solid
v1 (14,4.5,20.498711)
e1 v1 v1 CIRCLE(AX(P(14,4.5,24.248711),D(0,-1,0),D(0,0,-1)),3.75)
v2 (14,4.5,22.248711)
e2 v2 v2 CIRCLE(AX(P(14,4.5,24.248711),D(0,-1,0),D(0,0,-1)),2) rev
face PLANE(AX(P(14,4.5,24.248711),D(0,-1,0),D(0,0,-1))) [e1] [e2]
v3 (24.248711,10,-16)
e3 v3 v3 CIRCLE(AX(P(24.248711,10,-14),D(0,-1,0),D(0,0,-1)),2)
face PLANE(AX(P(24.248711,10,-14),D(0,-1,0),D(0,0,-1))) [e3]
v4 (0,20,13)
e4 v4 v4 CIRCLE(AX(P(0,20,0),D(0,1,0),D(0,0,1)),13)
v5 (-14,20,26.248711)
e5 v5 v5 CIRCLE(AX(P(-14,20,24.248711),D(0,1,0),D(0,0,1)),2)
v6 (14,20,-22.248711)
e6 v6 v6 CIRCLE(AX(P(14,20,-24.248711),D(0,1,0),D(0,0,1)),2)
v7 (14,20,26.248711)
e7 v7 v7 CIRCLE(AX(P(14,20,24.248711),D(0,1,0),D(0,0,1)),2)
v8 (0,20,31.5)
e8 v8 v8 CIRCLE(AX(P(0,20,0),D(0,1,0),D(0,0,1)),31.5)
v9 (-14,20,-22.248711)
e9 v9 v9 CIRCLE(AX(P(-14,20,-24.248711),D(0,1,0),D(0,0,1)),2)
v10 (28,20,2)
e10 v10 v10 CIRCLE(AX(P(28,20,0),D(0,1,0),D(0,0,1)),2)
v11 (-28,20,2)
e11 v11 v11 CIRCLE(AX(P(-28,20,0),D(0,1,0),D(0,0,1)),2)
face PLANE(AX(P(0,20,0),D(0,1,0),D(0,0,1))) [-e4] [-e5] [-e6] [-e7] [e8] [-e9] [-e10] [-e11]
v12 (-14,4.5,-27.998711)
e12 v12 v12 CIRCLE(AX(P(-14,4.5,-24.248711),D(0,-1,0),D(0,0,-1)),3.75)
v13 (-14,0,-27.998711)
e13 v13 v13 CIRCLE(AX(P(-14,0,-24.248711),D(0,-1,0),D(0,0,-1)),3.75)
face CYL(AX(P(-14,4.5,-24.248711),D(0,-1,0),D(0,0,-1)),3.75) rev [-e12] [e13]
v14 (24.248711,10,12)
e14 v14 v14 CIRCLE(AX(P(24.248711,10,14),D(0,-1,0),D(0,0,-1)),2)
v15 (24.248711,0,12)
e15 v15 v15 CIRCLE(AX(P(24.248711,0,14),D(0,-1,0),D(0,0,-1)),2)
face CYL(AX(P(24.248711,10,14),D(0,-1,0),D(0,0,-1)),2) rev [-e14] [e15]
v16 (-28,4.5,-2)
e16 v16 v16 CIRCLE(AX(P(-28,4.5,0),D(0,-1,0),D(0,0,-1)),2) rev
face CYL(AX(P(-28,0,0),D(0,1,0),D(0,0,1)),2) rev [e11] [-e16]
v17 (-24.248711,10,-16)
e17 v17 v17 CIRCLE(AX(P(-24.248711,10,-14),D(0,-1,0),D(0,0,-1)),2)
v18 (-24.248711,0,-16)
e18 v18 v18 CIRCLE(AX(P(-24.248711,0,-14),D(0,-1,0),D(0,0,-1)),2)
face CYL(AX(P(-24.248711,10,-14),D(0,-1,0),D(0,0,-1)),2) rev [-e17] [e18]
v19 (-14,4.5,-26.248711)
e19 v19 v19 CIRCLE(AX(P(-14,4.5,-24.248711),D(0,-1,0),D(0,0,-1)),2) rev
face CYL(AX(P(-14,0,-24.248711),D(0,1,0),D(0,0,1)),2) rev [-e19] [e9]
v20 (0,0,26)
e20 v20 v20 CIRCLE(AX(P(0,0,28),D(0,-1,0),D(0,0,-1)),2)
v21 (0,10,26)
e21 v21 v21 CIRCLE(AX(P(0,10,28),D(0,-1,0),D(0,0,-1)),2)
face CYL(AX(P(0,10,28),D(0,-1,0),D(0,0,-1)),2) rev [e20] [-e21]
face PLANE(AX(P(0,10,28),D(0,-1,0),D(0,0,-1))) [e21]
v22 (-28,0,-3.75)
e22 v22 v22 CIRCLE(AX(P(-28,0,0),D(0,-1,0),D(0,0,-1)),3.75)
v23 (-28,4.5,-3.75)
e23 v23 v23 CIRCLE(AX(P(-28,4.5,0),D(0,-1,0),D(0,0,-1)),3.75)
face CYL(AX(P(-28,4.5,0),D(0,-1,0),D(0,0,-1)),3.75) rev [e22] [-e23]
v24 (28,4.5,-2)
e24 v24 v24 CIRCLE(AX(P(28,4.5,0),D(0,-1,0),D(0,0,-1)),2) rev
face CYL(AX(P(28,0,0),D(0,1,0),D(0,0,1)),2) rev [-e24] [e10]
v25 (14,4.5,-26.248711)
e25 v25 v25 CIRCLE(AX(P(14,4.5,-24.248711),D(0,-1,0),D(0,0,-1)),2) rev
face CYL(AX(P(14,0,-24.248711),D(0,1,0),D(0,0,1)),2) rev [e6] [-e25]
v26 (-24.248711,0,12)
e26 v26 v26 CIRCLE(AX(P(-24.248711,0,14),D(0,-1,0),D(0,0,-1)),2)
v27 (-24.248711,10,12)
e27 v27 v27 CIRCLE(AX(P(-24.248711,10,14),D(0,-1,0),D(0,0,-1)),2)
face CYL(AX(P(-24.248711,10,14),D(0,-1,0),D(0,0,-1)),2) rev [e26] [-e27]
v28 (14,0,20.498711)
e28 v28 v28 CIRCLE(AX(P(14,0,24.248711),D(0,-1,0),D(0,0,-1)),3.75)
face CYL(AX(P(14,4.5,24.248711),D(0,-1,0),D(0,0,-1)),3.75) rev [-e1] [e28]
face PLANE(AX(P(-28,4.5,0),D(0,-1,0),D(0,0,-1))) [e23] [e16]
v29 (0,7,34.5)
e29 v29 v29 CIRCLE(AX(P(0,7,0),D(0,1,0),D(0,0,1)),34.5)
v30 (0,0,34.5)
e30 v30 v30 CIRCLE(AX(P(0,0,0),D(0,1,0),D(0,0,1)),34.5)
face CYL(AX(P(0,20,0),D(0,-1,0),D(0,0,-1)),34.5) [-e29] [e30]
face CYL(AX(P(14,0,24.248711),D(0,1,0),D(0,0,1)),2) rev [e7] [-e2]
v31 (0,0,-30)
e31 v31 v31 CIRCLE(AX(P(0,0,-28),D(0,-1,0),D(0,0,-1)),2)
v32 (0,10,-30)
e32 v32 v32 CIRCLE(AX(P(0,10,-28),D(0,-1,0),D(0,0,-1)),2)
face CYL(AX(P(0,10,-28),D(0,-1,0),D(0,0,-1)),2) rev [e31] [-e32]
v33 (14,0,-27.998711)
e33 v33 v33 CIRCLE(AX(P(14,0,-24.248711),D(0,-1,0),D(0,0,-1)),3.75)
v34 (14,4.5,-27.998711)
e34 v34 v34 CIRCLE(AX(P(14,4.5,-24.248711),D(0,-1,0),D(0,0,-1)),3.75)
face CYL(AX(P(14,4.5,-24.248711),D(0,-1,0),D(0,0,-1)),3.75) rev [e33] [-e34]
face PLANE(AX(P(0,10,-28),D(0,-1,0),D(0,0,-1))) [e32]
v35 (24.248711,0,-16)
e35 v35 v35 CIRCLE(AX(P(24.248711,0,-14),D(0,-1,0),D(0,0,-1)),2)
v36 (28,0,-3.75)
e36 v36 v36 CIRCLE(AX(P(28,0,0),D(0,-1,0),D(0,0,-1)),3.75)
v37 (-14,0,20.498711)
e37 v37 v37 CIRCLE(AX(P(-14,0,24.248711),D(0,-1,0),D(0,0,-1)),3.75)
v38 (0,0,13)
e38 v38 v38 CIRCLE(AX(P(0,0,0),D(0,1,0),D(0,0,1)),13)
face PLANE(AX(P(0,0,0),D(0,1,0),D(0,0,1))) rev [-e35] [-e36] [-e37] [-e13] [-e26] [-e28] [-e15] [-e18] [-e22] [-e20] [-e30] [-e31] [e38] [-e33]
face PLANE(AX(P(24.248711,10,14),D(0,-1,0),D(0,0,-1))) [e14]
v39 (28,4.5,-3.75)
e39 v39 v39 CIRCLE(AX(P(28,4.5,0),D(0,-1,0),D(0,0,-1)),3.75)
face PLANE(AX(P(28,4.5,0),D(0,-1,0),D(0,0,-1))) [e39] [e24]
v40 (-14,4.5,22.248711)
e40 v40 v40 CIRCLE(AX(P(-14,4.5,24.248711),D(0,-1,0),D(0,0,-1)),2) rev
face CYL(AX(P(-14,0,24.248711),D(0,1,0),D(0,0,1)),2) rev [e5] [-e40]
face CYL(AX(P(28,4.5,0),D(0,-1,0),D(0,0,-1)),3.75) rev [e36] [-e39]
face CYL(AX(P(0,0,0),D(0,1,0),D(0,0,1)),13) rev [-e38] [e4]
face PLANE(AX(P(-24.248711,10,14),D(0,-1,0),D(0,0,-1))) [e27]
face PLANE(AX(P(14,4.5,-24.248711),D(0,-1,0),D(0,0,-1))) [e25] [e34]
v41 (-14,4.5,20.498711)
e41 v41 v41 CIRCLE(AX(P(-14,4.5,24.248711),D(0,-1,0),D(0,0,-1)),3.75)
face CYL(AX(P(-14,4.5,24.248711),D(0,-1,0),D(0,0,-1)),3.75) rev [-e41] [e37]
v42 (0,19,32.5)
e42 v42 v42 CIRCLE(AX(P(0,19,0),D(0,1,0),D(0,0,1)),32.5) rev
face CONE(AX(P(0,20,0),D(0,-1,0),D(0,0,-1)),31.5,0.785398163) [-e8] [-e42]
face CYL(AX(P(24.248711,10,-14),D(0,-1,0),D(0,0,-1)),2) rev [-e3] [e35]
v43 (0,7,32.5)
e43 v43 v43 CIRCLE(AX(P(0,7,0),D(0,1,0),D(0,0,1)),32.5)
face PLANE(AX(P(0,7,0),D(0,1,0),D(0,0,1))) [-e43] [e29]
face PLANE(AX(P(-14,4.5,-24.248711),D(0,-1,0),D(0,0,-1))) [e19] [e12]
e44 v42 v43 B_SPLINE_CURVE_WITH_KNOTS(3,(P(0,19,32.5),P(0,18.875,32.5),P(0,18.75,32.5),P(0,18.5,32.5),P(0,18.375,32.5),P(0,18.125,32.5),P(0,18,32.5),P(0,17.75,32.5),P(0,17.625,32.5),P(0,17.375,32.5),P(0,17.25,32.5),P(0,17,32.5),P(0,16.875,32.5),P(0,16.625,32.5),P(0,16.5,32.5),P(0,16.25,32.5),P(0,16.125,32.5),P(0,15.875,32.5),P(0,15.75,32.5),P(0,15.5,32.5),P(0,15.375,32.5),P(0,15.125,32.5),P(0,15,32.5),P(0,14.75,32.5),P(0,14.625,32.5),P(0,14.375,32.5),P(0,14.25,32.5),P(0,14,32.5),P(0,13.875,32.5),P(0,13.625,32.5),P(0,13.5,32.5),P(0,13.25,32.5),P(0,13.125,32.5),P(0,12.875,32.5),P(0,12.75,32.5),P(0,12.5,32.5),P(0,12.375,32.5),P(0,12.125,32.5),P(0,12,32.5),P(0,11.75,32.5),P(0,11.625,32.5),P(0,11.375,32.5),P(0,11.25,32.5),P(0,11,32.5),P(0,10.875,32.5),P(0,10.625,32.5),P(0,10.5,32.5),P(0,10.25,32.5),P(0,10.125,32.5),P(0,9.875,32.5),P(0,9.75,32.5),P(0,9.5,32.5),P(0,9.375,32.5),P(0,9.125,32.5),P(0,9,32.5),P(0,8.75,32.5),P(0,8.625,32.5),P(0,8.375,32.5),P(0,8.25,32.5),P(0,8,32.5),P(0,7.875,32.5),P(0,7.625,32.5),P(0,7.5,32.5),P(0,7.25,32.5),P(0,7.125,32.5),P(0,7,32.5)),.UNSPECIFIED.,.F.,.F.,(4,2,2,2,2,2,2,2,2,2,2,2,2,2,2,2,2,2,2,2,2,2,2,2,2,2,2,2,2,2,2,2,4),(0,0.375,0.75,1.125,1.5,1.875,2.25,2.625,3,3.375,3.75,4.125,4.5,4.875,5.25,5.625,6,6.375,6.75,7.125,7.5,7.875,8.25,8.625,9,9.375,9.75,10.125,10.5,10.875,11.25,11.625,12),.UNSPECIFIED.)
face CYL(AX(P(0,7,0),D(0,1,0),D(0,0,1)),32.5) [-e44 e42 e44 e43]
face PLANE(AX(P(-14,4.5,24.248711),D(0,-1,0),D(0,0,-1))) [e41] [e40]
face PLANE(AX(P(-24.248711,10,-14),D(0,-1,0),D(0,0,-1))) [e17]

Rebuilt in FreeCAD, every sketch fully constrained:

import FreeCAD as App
import Part
import Sketcher
from FreeCAD import Vector
Q = App.Units.Quantity


def edges_at(feature, points):
    """Names of the edges that pass closest to the given points."""
    edges = feature.Shape.Edges
    near = lambda p: min(range(len(edges)), key=lambda i: edges[i].distToShape(Part.Vertex(*p))[0])
    return sorted({f"Edge{near(p) + 1}" for p in points})

doc = App.newDocument("Part")
body = doc.addObject("PartDesign::Body", "Body")

# Sketch on XZ plane
sketch1 = body.newObject("Sketcher::SketchObject", "Sketch")
sketch1.AttachmentSupport = (doc.getObject("XZ_Plane"), [""])
sketch1.MapMode = "FlatFace"
sketch1.addGeometry(Part.Circle(Vector(0, 0, 0), Vector(0, 0, 1), 34), False)
sketch1.addConstraint([
    Sketcher.Constraint("Coincident", 0, 3, -1, 1),
    Sketcher.Constraint("Diameter", 0, Q("69 mm")),
])
pad1 = body.newObject("PartDesign::Pad", "Pad")
pad1.Profile = sketch1
pad1.Length = 20
pad1.Reversed = True

# Sketch on XZ plane
sketch2 = body.newObject("Sketcher::SketchObject", "Sketch001")
sketch2.AttachmentSupport = (doc.getObject("XZ_Plane"), [""])
sketch2.MapMode = "FlatFace"
sketch2.AttachmentOffset = App.Placement(Vector(0, 0, -7), App.Rotation())
sketch2.addGeometry([
    Part.Circle(Vector(0, 0, 0), Vector(0, 0, 1), 34),
    Part.Circle(Vector(0, 0, 0), Vector(0, 0, 1), 32),
], False)
sketch2.addConstraint([
    Sketcher.Constraint("Coincident", 0, 3, -1, 1),
    Sketcher.Constraint("Coincident", 1, 3, -1, 1),
    Sketcher.Constraint("Diameter", 0, Q("69 mm")),
    Sketcher.Constraint("Diameter", 1, Q("65 mm")),
])
pocket1 = body.newObject("PartDesign::Pocket", "Pocket")
pocket1.Profile = sketch2
pocket1.Length = 13

# Sketch on XZ plane
sketch3 = body.newObject("Sketcher::SketchObject", "Sketch002")
sketch3.AttachmentSupport = (doc.getObject("XZ_Plane"), [""])
sketch3.MapMode = "FlatFace"
sketch3.AttachmentOffset = App.Placement(Vector(0, 0, -20), App.Rotation())
sketch3.addGeometry([
    Part.Circle(Vector(-28, 0, 0), Vector(0, 0, 1), 2),  # 0
    Part.Circle(Vector(-14, -24.2, 0), Vector(0, 0, 1), 2),  # 1
    Part.Circle(Vector(14, -24.2, 0), Vector(0, 0, 1), 2),  # 2
    Part.Circle(Vector(28, 0, 0), Vector(0, 0, 1), 2),  # 3
    Part.Circle(Vector(14, 24.2, 0), Vector(0, 0, 1), 2),  # 4
    Part.Circle(Vector(-14, 24.2, 0), Vector(0, 0, 1), 2),  # 5
], False)
sketch3.addConstraint([
    Sketcher.Constraint("Equal", 0, 1),
    Sketcher.Constraint("Equal", 1, 2),
    Sketcher.Constraint("Equal", 2, 3),
    Sketcher.Constraint("Equal", 3, 4),
    Sketcher.Constraint("Equal", 4, 5),
    Sketcher.Constraint("Symmetric", 0, 3, 3, 3, -1, 1),
    Sketcher.Constraint("Symmetric", 1, 3, 4, 3, -1, 1),
    Sketcher.Constraint("Symmetric", 2, 3, 5, 3, -1, 1),
    Sketcher.Constraint("Symmetric", 1, 3, 2, 3, -2),
    Sketcher.Constraint("PointOnObject", 0, 3, -1),
    Sketcher.Constraint("Diameter", 0, Q("4 mm")),
    Sketcher.Constraint("DistanceX", 0, 3, -1, 1, Q("28 mm")),
    Sketcher.Constraint("DistanceX", 1, 3, -1, 1, Q("14 mm")),
    Sketcher.Constraint("DistanceY", 1, 3, -1, 1, Q("24.248711 mm")),
])
pocket2 = body.newObject("PartDesign::Pocket", "Pocket001")
pocket2.Profile = sketch3
pocket2.Type = "ThroughAll"
pocket2.Reversed = True

# Sketch on XZ plane
sketch4 = body.newObject("Sketcher::SketchObject", "Sketch003")
sketch4.AttachmentSupport = (doc.getObject("XZ_Plane"), [""])
sketch4.MapMode = "FlatFace"
sketch4.AttachmentOffset = App.Placement(Vector(0, 0, -20), App.Rotation())
sketch4.addGeometry(Part.Circle(Vector(0, 0, 0), Vector(0, 0, 1), 13), False)
sketch4.addConstraint([
    Sketcher.Constraint("Coincident", 0, 3, -1, 1),
    Sketcher.Constraint("Diameter", 0, Q("26 mm")),
])
pocket3 = body.newObject("PartDesign::Pocket", "Pocket002")
pocket3.Profile = sketch4
pocket3.Type = "ThroughAll"
pocket3.Reversed = True

# Sketch on XZ plane
sketch5 = body.newObject("Sketcher::SketchObject", "Sketch004")
sketch5.AttachmentSupport = (doc.getObject("XZ_Plane"), [""])
sketch5.MapMode = "FlatFace"
sketch5.addGeometry([
    Part.Circle(Vector(-28, 0, 0), Vector(0, 0, 1), 3.8),  # 0
    Part.Circle(Vector(-14, 24.2, 0), Vector(0, 0, 1), 3.8),  # 1
    Part.Circle(Vector(14, 24.2, 0), Vector(0, 0, 1), 3.8),  # 2
    Part.Circle(Vector(28, 0, 0), Vector(0, 0, 1), 3.8),  # 3
    Part.Circle(Vector(14, -24.2, 0), Vector(0, 0, 1), 3.8),  # 4
    Part.Circle(Vector(-14, -24.2, 0), Vector(0, 0, 1), 3.8),  # 5
], False)
sketch5.addConstraint([
    Sketcher.Constraint("Equal", 0, 1),
    Sketcher.Constraint("Equal", 1, 2),
    Sketcher.Constraint("Equal", 2, 3),
    Sketcher.Constraint("Equal", 3, 4),
    Sketcher.Constraint("Equal", 4, 5),
    Sketcher.Constraint("Symmetric", 0, 3, 3, 3, -1, 1),
    Sketcher.Constraint("Symmetric", 1, 3, 4, 3, -1, 1),
    Sketcher.Constraint("Symmetric", 2, 3, 5, 3, -1, 1),
    Sketcher.Constraint("Symmetric", 1, 3, 2, 3, -2),
    Sketcher.Constraint("PointOnObject", 0, 3, -1),
    Sketcher.Constraint("Diameter", 0, Q("7.5 mm")),
    Sketcher.Constraint("DistanceX", 0, 3, -1, 1, Q("28 mm")),
    Sketcher.Constraint("DistanceX", 1, 3, -1, 1, Q("14 mm")),
    Sketcher.Constraint("DistanceY", -1, 1, 1, 3, Q("24.248711 mm")),
])
pocket4 = body.newObject("PartDesign::Pocket", "Pocket003")
pocket4.Profile = sketch5
pocket4.Length = 4.5
doc.recompute()

chamfer = body.newObject("PartDesign::Chamfer", "Chamfer")
chamfer.Base = (pocket4, edges_at(pocket4, [(0, 20, -32.5)]))
chamfer.Size = 1

# Sketch on XZ plane
sketch6 = body.newObject("Sketcher::SketchObject", "Sketch005")
sketch6.AttachmentSupport = (doc.getObject("XZ_Plane"), [""])
sketch6.MapMode = "FlatFace"
sketch6.addGeometry([
    Part.Circle(Vector(0, 28, 0), Vector(0, 0, 1), 2),  # 0
    Part.Circle(Vector(24.2, 14, 0), Vector(0, 0, 1), 2),  # 1
    Part.Circle(Vector(24.2, -14, 0), Vector(0, 0, 1), 2),  # 2
    Part.Circle(Vector(0, -28, 0), Vector(0, 0, 1), 2),  # 3
    Part.Circle(Vector(-24.2, -14, 0), Vector(0, 0, 1), 2),  # 4
    Part.Circle(Vector(-24.2, 14, 0), Vector(0, 0, 1), 2),  # 5
], False)
sketch6.addConstraint([
    Sketcher.Constraint("Equal", 0, 1),
    Sketcher.Constraint("Equal", 1, 2),
    Sketcher.Constraint("Equal", 2, 3),
    Sketcher.Constraint("Equal", 3, 4),
    Sketcher.Constraint("Equal", 4, 5),
    Sketcher.Constraint("Symmetric", 0, 3, 3, 3, -1, 1),
    Sketcher.Constraint("Symmetric", 1, 3, 4, 3, -1, 1),
    Sketcher.Constraint("Symmetric", 2, 3, 5, 3, -1, 1),
    Sketcher.Constraint("Symmetric", 2, 3, 4, 3, -2),
    Sketcher.Constraint("PointOnObject", 0, 3, -2),
    Sketcher.Constraint("Diameter", 0, Q("4 mm")),
    Sketcher.Constraint("DistanceY", -1, 1, 0, 3, Q("28 mm")),
    Sketcher.Constraint("DistanceY", -1, 1, 1, 3, Q("14 mm")),
    Sketcher.Constraint("DistanceX", -1, 1, 1, 3, Q("24.248711 mm")),
])
pocket5 = body.newObject("PartDesign::Pocket", "Pocket004")
pocket5.Profile = sketch6
pocket5.Length = 10

doc.recompute()
